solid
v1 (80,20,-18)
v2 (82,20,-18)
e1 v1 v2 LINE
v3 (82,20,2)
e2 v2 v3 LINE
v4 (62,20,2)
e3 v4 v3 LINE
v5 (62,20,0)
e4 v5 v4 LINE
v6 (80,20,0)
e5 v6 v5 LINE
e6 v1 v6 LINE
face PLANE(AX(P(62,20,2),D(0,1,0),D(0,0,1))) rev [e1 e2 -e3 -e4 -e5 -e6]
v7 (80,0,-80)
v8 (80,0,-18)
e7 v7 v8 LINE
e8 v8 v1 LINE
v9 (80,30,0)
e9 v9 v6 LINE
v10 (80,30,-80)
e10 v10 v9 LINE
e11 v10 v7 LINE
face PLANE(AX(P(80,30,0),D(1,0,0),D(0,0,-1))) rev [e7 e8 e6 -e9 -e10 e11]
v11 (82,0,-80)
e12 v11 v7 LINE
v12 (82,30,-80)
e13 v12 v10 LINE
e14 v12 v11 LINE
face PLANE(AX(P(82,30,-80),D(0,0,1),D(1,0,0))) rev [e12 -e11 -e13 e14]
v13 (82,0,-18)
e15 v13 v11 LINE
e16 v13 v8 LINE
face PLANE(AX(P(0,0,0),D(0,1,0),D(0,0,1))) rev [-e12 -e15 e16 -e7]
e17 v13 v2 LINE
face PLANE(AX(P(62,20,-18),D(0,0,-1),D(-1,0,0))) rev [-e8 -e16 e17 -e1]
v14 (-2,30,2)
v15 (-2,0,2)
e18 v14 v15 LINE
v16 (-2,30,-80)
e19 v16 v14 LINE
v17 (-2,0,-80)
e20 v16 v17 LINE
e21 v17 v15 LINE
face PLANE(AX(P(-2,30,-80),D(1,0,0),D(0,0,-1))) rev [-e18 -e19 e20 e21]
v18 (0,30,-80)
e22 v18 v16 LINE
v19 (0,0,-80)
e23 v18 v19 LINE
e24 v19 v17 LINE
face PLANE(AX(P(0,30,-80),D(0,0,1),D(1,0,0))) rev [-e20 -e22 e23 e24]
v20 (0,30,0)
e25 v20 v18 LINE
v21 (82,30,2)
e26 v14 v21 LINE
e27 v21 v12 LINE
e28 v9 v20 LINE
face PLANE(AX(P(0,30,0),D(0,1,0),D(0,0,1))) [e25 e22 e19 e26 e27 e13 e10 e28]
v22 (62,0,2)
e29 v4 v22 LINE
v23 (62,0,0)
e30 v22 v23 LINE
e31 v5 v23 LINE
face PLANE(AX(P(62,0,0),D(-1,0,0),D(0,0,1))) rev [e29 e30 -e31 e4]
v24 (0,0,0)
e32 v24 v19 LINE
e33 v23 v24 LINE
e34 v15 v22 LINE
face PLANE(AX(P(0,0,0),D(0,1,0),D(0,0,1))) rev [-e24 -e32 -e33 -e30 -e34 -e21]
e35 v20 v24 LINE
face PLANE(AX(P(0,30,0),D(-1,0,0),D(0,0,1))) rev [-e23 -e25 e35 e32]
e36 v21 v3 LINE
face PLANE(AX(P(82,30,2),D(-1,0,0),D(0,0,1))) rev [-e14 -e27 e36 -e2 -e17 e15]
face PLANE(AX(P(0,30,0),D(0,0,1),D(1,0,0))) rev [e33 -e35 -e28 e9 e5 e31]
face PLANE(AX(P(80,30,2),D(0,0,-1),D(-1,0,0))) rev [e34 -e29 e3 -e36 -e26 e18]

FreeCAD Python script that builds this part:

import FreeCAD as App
import Part
import Sketcher

V = App.Vector
Q = App.Units.Quantity


def add_polygon(sketch, points):
    """Adds a closed chain of lines whose ends are joined by coincident constraints."""
    first, n = sketch.GeometryCount, len(points)
    for a, b in zip(points, points[1:] + points[:1]):
        sketch.addGeometry(Part.LineSegment(App.Vector(*a, 0), App.Vector(*b, 0)), False)
    for i in range(n):
        sketch.addConstraint(Sketcher.Constraint("Coincident", first + i, 2, first + (i + 1) % n, 1))

doc = App.newDocument("Part")
body = doc.addObject("PartDesign::Body", "Body")

# Sketch on XZ plane
sketch1 = body.newObject("Sketcher::SketchObject", "Sketch")
sketch1.AttachmentSupport = (doc.getObject("XZ_Plane"), [""])
sketch1.MapMode = "FlatFace"
add_polygon(sketch1, [(80, 0), (0, 0), (0, -80), (-2, -80), (-2, 2), (82, 2), (82, -80), (80, -80)])  # lines 0-7
sketch1.addConstraint([
    Sketcher.Constraint("Horizontal", 0),
    Sketcher.Constraint("Vertical", 1),
    Sketcher.Constraint("Horizontal", 2),
    Sketcher.Constraint("Vertical", 3),
    Sketcher.Constraint("Horizontal", 4),
    Sketcher.Constraint("Vertical", 5),
    Sketcher.Constraint("Horizontal", 6),
    Sketcher.Constraint("Vertical", 7),
    Sketcher.Constraint("Coincident", 0, 2, -1, 1),
    Sketcher.Constraint("Horizontal", 2, 2, 5, 2),
    Sketcher.Constraint("Equal", 2, 6),
    Sketcher.Constraint("Equal", 0, 1),
    Sketcher.Constraint("DistanceX", 0, 2, 0, 1, Q("80 mm")),
    Sketcher.Constraint("DistanceX", 2, 2, 2, 1, Q("2 mm")),
    Sketcher.Constraint("DistanceY", 3, 1, 3, 2, Q("82 mm")),
])
pad1 = body.newObject("PartDesign::Pad", "Pad")
pad1.Profile = sketch1
pad1.Length = 30
pad1.Reversed = True

# Sketch on YZ plane
sketch2 = body.newObject("Sketcher::SketchObject", "Sketch001")
sketch2.AttachmentSupport = (doc.getObject("YZ_Plane"), [""])
sketch2.MapMode = "FlatFace"
sketch2.AttachmentOffset = App.Placement(V(0, 0, 82), App.Rotation())
add_polygon(sketch2, [(20, 2), (0, 2), (0, -18), (20, -18)])  # lines 0-3
sketch2.addConstraint([
    Sketcher.Constraint("Horizontal", 0),
    Sketcher.Constraint("Vertical", 1),
    Sketcher.Constraint("Horizontal", 2),
    Sketcher.Constraint("Vertical", 3),
    Sketcher.Constraint("PointOnObject", 0, 2, -2),
    Sketcher.Constraint("Equal", 2, 1),
    Sketcher.Constraint("DistanceX", 0, 2, 0, 1, Q("20 mm")),
    Sketcher.Constraint("DistanceY", -1, 1, 0, 2, Q("2 mm")),
])
pocket1 = body.newObject("PartDesign::Pocket", "Pocket")
pocket1.Profile = sketch2
pocket1.Length = 20

doc.recompute()
